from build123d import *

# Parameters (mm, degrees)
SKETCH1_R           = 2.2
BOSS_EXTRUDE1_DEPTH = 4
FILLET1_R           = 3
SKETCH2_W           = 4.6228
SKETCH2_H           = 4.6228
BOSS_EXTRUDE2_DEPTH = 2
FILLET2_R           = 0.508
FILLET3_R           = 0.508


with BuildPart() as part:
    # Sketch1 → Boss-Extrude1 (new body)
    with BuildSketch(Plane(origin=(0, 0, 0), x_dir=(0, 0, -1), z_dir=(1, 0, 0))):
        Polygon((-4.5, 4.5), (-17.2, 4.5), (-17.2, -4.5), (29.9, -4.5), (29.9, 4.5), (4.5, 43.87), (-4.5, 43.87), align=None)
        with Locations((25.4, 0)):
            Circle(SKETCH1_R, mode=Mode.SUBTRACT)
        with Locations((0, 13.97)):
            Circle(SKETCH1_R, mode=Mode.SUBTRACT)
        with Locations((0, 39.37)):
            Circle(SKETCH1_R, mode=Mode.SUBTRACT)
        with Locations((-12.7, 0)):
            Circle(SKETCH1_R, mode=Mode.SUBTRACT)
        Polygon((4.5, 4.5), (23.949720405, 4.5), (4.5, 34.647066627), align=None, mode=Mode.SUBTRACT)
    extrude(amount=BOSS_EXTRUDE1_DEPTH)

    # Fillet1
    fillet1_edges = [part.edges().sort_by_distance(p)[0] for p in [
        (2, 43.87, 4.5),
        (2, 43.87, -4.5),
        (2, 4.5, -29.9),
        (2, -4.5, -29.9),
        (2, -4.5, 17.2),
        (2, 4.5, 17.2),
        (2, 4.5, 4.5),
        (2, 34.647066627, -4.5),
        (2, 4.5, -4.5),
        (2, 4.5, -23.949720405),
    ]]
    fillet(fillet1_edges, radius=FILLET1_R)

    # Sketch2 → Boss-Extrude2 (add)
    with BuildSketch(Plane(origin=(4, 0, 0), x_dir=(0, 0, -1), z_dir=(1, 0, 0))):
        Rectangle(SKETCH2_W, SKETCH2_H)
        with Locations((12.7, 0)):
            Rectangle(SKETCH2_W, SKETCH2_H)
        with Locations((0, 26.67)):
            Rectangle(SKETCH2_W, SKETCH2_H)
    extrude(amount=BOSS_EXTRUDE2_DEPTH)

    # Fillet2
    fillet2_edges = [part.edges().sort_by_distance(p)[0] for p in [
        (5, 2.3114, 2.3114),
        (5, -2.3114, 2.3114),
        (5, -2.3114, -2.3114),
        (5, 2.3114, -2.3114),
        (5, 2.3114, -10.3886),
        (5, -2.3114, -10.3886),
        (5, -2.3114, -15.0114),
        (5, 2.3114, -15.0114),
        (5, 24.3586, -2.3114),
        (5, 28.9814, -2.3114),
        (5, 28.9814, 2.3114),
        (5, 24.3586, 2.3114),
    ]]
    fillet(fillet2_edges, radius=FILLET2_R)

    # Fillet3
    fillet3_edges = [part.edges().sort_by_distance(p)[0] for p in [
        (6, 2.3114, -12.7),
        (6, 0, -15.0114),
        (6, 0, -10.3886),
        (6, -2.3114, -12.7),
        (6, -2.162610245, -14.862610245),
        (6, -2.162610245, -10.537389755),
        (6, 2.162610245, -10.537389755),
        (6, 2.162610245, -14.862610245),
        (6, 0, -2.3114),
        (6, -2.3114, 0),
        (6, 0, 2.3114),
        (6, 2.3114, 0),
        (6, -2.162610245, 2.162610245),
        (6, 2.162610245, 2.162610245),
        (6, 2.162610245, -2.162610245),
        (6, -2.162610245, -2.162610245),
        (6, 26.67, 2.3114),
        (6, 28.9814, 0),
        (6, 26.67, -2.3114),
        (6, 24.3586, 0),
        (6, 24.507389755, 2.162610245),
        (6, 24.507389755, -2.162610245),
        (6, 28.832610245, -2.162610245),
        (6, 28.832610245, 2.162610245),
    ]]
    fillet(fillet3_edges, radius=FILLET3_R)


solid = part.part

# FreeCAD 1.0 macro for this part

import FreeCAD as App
import Part
import Sketcher

V = App.Vector
Q = App.Units.Quantity


def edges_at(feature, points):
    """Names of the edges that pass closest to the given points."""
    edges = feature.Shape.Edges
    near = lambda p: min(range(len(edges)), key=lambda i: edges[i].distToShape(Part.Vertex(*p))[0])
    return sorted({f"Edge{near(p) + 1}" for p in points})

doc = App.newDocument("Part")
body = doc.addObject("PartDesign::Body", "Body")

# Sketch on YZ plane
sketch1 = body.newObject("Sketcher::SketchObject", "Sketch")
sketch1.AttachmentSupport = (doc.getObject("YZ_Plane"), [""])
sketch1.MapMode = "FlatFace"
sketch1.addGeometry([
    Part.LineSegment(V(4.5, 4.5, 0), V(4.5, 17.2, 0)),  # 0
    Part.LineSegment(V(4.5, 17.2, 0), V(-4.5, 17.2, 0)),  # 1
    Part.LineSegment(V(-4.5, 17.2, 0), V(-4.5, -29.9, 0)),  # 2
    Part.LineSegment(V(-4.5, -29.9, 0), V(4.5, -29.9, 0)),  # 3
    Part.LineSegment(V(4.5, -29.9, 0), V(43.87, -4.5, 0)),  # 4
    Part.LineSegment(V(43.87, -4.5, 0), V(43.87, 4.5, 0)),  # 5
    Part.LineSegment(V(43.87, 4.5, 0), V(4.5, 4.5, 0)),  # 6
    Part.Circle(V(0, 12.7, 0), V(0, 0, 1), 2.2),  # 7
    Part.Circle(V(13.97, 0, 0), V(0, 0, 1), 2.2),  # 8
    Part.Circle(V(0, -25.4, 0), V(0, 0, 1), 2.2),  # 9
    Part.LineSegment(V(4.5, -23.94972, 0), V(4.5, -4.5, 0)),  # 10
    Part.LineSegment(V(4.5, -4.5, 0), V(34.647067, -4.5, 0)),  # 11
    Part.LineSegment(V(34.647067, -4.5, 0), V(4.5, -23.94972, 0)),  # 12
    Part.Circle(V(39.37, 0, 0), V(0, 0, 1), 2.2),  # 13
], False)
sketch1.addConstraint([
    Sketcher.Constraint("Coincident", 0, 2, 1, 1),
    Sketcher.Constraint("Coincident", 1, 2, 2, 1),
    Sketcher.Constraint("Coincident", 2, 2, 3, 1),
    Sketcher.Constraint("Coincident", 3, 2, 4, 1),
    Sketcher.Constraint("Coincident", 4, 2, 5, 1),
    Sketcher.Constraint("Coincident", 5, 2, 6, 1),
    Sketcher.Constraint("Coincident", 6, 2, 0, 1),
    Sketcher.Constraint("Coincident", 10, 2, 11, 1),
    Sketcher.Constraint("Coincident", 11, 2, 12, 1),
    Sketcher.Constraint("Coincident", 12, 2, 10, 1),
    Sketcher.Constraint("Vertical", 0),
    Sketcher.Constraint("Horizontal", 1),
    Sketcher.Constraint("Vertical", 2),
    Sketcher.Constraint("Horizontal", 3),
    Sketcher.Constraint("Vertical", 5),
    Sketcher.Constraint("Horizontal", 6),
    Sketcher.Constraint("Vertical", 10),
    Sketcher.Constraint("Horizontal", 11),
    Sketcher.Constraint("Equal", 7, 8),
    Sketcher.Constraint("Equal", 8, 9),
    Sketcher.Constraint("Equal", 9, 13),
    Sketcher.Constraint("Symmetric", 6, 2, 10, 2, -1),
    Sketcher.Constraint("PointOnObject", 7, 3, -2),
    Sketcher.Constraint("PointOnObject", 8, 3, -1),
    Sketcher.Constraint("PointOnObject", 9, 3, -2),
    Sketcher.Constraint("PointOnObject", 13, 3, -1),
    Sketcher.Constraint("Parallel", 4, 12),
    Sketcher.Constraint("Horizontal", 4, 2, 10, 2),
    Sketcher.Constraint("Vertical", 0, 2, 3, 2),
    Sketcher.Constraint("Equal", 3, 5),
    Sketcher.Constraint("Diameter", 7, Q("4.4 mm")),
    Sketcher.Constraint("DistanceX", 1, 2, 1, 1, Q("9 mm")),
    Sketcher.Constraint("DistanceY", 0, 1, 0, 2, Q("12.7 mm")),
    Sketcher.Constraint("DistanceY", 2, 2, 2, 1, Q("47.1 mm")),
    Sketcher.Constraint("DistanceX", 6, 2, 6, 1, Q("39.37 mm")),
    Sketcher.Constraint("DistanceY", -1, 1, 7, 3, Q("12.7 mm")),
    Sketcher.Constraint("DistanceY", 9, 3, -1, 1, Q("25.4 mm")),
    Sketcher.Constraint("DistanceX", -1, 1, 0, 2, Q("4.5 mm")),
    Sketcher.Constraint("DistanceX", 8, 3, 13, 3, Q("25.4 mm")),
    Sketcher.Constraint("DistanceX", 13, 3, 4, 2, Q("4.5 mm")),
    Sketcher.Constraint("DistanceY", 10, 1, 10, 2, Q("19.44972 mm")),
])
pad1 = body.newObject("PartDesign::Pad", "Pad")
pad1.Profile = sketch1
pad1.Length = 4
doc.recompute()

fillet = body.newObject("PartDesign::Fillet", "Fillet")
fillet.Base = (pad1, edges_at(pad1, [
    (2, 43.87, 4.5),
    (2, 43.87, -4.5),
    (2, 4.5, -29.9),
    (2, -4.5, -29.9),
    (2, -4.5, 17.2),
    (2, 4.5, 17.2),
    (2, 4.5, 4.5),
    (2, 34.647, -4.5),
    (2, 4.5, -4.5),
    (2, 4.5, -23.95),
]))
fillet.Radius = 3

# Sketch on YZ plane
sketch2 = body.newObject("Sketcher::SketchObject", "Sketch001")
sketch2.AttachmentSupport = (doc.getObject("YZ_Plane"), [""])
sketch2.MapMode = "FlatFace"
sketch2.AttachmentOffset = App.Placement(V(0, 0, 4), App.Rotation())
sketch2.addGeometry([
    Part.LineSegment(V(2.3114, 2.3114, 0), V(-2.3114, 2.3114, 0)),  # 0
    Part.LineSegment(V(-2.3114, 2.3114, 0), V(-2.3114, -2.3114, 0)),  # 1
    Part.LineSegment(V(-2.3114, -2.3114, 0), V(2.3114, -2.3114, 0)),  # 2
    Part.LineSegment(V(2.3114, -2.3114, 0), V(2.3114, 2.3114, 0)),  # 3
    Part.LineSegment(V(2.3114, -10.3886, 0), V(-2.3114, -10.3886, 0)),  # 4
    Part.LineSegment(V(-2.3114, -10.3886, 0), V(-2.3114, -15.0114, 0)),  # 5
    Part.LineSegment(V(-2.3114, -15.0114, 0), V(2.3114, -15.0114, 0)),  # 6
    Part.LineSegment(V(2.3114, -15.0114, 0), V(2.3114, -10.3886, 0)),  # 7
    Part.LineSegment(V(28.9814, 2.3114, 0), V(24.3586, 2.3114, 0)),  # 8
    Part.LineSegment(V(24.3586, 2.3114, 0), V(24.3586, -2.3114, 0)),  # 9
    Part.LineSegment(V(24.3586, -2.3114, 0), V(28.9814, -2.3114, 0)),  # 10
    Part.LineSegment(V(28.9814, -2.3114, 0), V(28.9814, 2.3114, 0)),  # 11
], False)
sketch2.addConstraint([
    Sketcher.Constraint("Coincident", 0, 2, 1, 1),
    Sketcher.Constraint("Coincident", 1, 2, 2, 1),
    Sketcher.Constraint("Coincident", 2, 2, 3, 1),
    Sketcher.Constraint("Coincident", 3, 2, 0, 1),
    Sketcher.Constraint("Coincident", 4, 2, 5, 1),
    Sketcher.Constraint("Coincident", 5, 2, 6, 1),
    Sketcher.Constraint("Coincident", 6, 2, 7, 1),
    Sketcher.Constraint("Coincident", 7, 2, 4, 1),
    Sketcher.Constraint("Coincident", 8, 2, 9, 1),
    Sketcher.Constraint("Coincident", 9, 2, 10, 1),
    Sketcher.Constraint("Coincident", 10, 2, 11, 1),
    Sketcher.Constraint("Coincident", 11, 2, 8, 1),
    Sketcher.Constraint("Horizontal", 0),
    Sketcher.Constraint("Vertical", 1),
    Sketcher.Constraint("Horizontal", 2),
    Sketcher.Constraint("Vertical", 3),
    Sketcher.Constraint("Horizontal", 4),
    Sketcher.Constraint("Vertical", 5),
    Sketcher.Constraint("Horizontal", 6),
    Sketcher.Constraint("Vertical", 7),
    Sketcher.Constraint("Horizontal", 8),
    Sketcher.Constraint("Vertical", 9),
    Sketcher.Constraint("Horizontal", 10),
    Sketcher.Constraint("Vertical", 11),
    Sketcher.Constraint("Symmetric", 0, 2, 2, 2, -1, 1),
    Sketcher.Constraint("Horizontal", 3, 2, 8, 2),
    Sketcher.Constraint("Horizontal", 2, 2, 9, 2),
    Sketcher.Constraint("Vertical", 1, 2, 4, 2),
    Sketcher.Constraint("Vertical", 3, 2, 6, 2),
    Sketcher.Constraint("Equal", 6, 8),
    Sketcher.Constraint("Equal", 10, 1),
    Sketcher.Constraint("Equal", 3, 5),
    Sketcher.Constraint("DistanceY", 4, 2, 0, 2, Q("12.7 mm")),
    Sketcher.Constraint("DistanceX", 0, 2, 8, 2, Q("26.67 mm")),
    Sketcher.Constraint("DistanceX", 0, 2, 0, 1, Q("4.6228 mm")),
])
pad2 = body.newObject("PartDesign::Pad", "Pad001")
pad2.Profile = sketch2
pad2.Length = 2
doc.recompute()

fillet2 = body.newObject("PartDesign::Fillet", "Fillet001")
fillet2.Base = (pad2, edges_at(pad2, [
    (5, 2.311, 2.311),
    (5, -2.311, 2.311),
    (5, -2.311, -2.311),
    (5, 2.311, -2.311),
    (5, 2.311, -10.389),
    (5, -2.311, -10.389),
    (5, -2.311, -15.011),
    (5, 2.311, -15.011),
    (5, 24.359, -2.311),
    (5, 28.981, -2.311),
    (5, 28.981, 2.311),
    (5, 24.359, 2.311),
]))
fillet2.Radius = 0.508
doc.recompute()

fillet3 = body.newObject("PartDesign::Fillet", "Fillet002")
fillet3.Base = (fillet2, edges_at(fillet2, [
    (6, 2.311, -12.7),
    (6, 0, -15.011),
    (6, 0, -10.389),
    (6, -2.311, -12.7),
    (6, -2.163, -14.863),
    (6, -2.163, -10.537),
    (6, 2.163, -10.537),
    (6, 2.163, -14.863),
    (6, 0, -2.311),
    (6, -2.311, 0),
    (6, 0, 2.311),
    (6, 2.311, 0),
    (6, -2.163, 2.163),
    (6, 2.163, 2.163),
    (6, 2.163, -2.163),
    (6, -2.163, -2.163),
    (6, 26.67, 2.311),
    (6, 28.981, 0),
    (6, 26.67, -2.311),
    (6, 24.359, 0),
    (6, 24.507, 2.163),
    (6, 24.507, -2.163),
    (6, 28.833, -2.163),
    (6, 28.833, 2.163),
]))
fillet3.Radius = 0.508

doc.recompute()
